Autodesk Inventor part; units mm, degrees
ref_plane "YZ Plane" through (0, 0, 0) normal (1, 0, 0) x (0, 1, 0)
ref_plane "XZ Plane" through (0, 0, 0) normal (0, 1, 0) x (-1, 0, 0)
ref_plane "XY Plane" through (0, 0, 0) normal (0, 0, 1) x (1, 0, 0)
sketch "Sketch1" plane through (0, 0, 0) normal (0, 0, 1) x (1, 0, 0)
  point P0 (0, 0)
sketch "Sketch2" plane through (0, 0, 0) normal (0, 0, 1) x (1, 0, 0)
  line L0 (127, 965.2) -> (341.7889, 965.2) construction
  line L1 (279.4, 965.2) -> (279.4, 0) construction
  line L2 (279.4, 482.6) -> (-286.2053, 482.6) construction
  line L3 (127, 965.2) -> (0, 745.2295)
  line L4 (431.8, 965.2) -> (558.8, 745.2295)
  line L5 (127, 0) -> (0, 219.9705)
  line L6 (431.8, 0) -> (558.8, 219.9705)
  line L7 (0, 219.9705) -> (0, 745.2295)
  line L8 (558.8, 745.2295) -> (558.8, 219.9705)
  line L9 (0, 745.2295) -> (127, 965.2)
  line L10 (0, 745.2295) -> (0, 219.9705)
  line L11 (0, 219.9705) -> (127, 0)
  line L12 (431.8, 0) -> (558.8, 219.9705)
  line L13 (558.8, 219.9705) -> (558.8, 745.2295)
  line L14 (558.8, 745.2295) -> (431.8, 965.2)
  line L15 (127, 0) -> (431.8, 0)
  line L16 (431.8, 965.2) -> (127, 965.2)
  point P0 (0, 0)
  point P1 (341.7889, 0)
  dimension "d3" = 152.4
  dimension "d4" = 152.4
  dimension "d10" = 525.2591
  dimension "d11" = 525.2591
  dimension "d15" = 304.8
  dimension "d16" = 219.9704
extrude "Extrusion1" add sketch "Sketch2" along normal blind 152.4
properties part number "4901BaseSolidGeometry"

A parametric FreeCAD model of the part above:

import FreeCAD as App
import Part
import Sketcher
from FreeCAD import Vector
Q = App.Units.Quantity


def add_polygon(sketch, points):
    """Adds a closed chain of lines whose ends are joined by coincident constraints."""
    first, n = sketch.GeometryCount, len(points)
    for a, b in zip(points, points[1:] + points[:1]):
        sketch.addGeometry(Part.LineSegment(App.Vector(*a, 0), App.Vector(*b, 0)), False)
    for i in range(n):
        sketch.addConstraint(Sketcher.Constraint("Coincident", first + i, 2, first + (i + 1) % n, 1))

doc = App.newDocument("Part")
body = doc.addObject("PartDesign::Body", "Body")

sketch1 = body.newObject("Sketcher::SketchObject", "Sketch")
sketch1.AttachmentSupport = (doc.getObject("XY_Plane"), [""])
sketch1.MapMode = "FlatFace"
add_polygon(sketch1, [(431.8, 965.2), (127, 965.2), (0, 745.2295), (0, 219.9705), (127, 0), (431.8, 0), (558.8, 219.9705), (558.8, 745.2295)])
sketch1.addConstraint([
    Sketcher.Constraint("Horizontal", 0),
    Sketcher.Constraint("Vertical", 2),
    Sketcher.Constraint("Horizontal", 4),
    Sketcher.Constraint("Vertical", 6),
    Sketcher.Constraint("PointOnObject", 1, 2, -2),
    Sketcher.Constraint("PointOnObject", 3, 2, -1),
    Sketcher.Constraint("Parallel", 1, 5),
    Sketcher.Constraint("Parallel", 3, 7),
    Sketcher.Constraint("Horizontal", 2, 2, 5, 2),
    Sketcher.Constraint("Horizontal", 1, 2, 6, 2),
    Sketcher.Constraint("Vertical", 0, 2, 3, 2),
    Sketcher.Constraint("Vertical", 4, 2, 7, 2),
    Sketcher.Constraint("DistanceX", 0, 2, 0, 1, Q("12 in")),
    Sketcher.Constraint("Distance", 1, Q("10 in")),
    Sketcher.Constraint("DistanceY", 2, 2, 2, 1, Q("20.6795 in")),
    Sketcher.Constraint("DistanceX", -1, 1, 0, 2, Q("5 in")),
])
pad1 = body.newObject("PartDesign::Pad", "Pad")
pad1.Profile = sketch1
pad1.Length = Q("6 in")

doc.recompute()
